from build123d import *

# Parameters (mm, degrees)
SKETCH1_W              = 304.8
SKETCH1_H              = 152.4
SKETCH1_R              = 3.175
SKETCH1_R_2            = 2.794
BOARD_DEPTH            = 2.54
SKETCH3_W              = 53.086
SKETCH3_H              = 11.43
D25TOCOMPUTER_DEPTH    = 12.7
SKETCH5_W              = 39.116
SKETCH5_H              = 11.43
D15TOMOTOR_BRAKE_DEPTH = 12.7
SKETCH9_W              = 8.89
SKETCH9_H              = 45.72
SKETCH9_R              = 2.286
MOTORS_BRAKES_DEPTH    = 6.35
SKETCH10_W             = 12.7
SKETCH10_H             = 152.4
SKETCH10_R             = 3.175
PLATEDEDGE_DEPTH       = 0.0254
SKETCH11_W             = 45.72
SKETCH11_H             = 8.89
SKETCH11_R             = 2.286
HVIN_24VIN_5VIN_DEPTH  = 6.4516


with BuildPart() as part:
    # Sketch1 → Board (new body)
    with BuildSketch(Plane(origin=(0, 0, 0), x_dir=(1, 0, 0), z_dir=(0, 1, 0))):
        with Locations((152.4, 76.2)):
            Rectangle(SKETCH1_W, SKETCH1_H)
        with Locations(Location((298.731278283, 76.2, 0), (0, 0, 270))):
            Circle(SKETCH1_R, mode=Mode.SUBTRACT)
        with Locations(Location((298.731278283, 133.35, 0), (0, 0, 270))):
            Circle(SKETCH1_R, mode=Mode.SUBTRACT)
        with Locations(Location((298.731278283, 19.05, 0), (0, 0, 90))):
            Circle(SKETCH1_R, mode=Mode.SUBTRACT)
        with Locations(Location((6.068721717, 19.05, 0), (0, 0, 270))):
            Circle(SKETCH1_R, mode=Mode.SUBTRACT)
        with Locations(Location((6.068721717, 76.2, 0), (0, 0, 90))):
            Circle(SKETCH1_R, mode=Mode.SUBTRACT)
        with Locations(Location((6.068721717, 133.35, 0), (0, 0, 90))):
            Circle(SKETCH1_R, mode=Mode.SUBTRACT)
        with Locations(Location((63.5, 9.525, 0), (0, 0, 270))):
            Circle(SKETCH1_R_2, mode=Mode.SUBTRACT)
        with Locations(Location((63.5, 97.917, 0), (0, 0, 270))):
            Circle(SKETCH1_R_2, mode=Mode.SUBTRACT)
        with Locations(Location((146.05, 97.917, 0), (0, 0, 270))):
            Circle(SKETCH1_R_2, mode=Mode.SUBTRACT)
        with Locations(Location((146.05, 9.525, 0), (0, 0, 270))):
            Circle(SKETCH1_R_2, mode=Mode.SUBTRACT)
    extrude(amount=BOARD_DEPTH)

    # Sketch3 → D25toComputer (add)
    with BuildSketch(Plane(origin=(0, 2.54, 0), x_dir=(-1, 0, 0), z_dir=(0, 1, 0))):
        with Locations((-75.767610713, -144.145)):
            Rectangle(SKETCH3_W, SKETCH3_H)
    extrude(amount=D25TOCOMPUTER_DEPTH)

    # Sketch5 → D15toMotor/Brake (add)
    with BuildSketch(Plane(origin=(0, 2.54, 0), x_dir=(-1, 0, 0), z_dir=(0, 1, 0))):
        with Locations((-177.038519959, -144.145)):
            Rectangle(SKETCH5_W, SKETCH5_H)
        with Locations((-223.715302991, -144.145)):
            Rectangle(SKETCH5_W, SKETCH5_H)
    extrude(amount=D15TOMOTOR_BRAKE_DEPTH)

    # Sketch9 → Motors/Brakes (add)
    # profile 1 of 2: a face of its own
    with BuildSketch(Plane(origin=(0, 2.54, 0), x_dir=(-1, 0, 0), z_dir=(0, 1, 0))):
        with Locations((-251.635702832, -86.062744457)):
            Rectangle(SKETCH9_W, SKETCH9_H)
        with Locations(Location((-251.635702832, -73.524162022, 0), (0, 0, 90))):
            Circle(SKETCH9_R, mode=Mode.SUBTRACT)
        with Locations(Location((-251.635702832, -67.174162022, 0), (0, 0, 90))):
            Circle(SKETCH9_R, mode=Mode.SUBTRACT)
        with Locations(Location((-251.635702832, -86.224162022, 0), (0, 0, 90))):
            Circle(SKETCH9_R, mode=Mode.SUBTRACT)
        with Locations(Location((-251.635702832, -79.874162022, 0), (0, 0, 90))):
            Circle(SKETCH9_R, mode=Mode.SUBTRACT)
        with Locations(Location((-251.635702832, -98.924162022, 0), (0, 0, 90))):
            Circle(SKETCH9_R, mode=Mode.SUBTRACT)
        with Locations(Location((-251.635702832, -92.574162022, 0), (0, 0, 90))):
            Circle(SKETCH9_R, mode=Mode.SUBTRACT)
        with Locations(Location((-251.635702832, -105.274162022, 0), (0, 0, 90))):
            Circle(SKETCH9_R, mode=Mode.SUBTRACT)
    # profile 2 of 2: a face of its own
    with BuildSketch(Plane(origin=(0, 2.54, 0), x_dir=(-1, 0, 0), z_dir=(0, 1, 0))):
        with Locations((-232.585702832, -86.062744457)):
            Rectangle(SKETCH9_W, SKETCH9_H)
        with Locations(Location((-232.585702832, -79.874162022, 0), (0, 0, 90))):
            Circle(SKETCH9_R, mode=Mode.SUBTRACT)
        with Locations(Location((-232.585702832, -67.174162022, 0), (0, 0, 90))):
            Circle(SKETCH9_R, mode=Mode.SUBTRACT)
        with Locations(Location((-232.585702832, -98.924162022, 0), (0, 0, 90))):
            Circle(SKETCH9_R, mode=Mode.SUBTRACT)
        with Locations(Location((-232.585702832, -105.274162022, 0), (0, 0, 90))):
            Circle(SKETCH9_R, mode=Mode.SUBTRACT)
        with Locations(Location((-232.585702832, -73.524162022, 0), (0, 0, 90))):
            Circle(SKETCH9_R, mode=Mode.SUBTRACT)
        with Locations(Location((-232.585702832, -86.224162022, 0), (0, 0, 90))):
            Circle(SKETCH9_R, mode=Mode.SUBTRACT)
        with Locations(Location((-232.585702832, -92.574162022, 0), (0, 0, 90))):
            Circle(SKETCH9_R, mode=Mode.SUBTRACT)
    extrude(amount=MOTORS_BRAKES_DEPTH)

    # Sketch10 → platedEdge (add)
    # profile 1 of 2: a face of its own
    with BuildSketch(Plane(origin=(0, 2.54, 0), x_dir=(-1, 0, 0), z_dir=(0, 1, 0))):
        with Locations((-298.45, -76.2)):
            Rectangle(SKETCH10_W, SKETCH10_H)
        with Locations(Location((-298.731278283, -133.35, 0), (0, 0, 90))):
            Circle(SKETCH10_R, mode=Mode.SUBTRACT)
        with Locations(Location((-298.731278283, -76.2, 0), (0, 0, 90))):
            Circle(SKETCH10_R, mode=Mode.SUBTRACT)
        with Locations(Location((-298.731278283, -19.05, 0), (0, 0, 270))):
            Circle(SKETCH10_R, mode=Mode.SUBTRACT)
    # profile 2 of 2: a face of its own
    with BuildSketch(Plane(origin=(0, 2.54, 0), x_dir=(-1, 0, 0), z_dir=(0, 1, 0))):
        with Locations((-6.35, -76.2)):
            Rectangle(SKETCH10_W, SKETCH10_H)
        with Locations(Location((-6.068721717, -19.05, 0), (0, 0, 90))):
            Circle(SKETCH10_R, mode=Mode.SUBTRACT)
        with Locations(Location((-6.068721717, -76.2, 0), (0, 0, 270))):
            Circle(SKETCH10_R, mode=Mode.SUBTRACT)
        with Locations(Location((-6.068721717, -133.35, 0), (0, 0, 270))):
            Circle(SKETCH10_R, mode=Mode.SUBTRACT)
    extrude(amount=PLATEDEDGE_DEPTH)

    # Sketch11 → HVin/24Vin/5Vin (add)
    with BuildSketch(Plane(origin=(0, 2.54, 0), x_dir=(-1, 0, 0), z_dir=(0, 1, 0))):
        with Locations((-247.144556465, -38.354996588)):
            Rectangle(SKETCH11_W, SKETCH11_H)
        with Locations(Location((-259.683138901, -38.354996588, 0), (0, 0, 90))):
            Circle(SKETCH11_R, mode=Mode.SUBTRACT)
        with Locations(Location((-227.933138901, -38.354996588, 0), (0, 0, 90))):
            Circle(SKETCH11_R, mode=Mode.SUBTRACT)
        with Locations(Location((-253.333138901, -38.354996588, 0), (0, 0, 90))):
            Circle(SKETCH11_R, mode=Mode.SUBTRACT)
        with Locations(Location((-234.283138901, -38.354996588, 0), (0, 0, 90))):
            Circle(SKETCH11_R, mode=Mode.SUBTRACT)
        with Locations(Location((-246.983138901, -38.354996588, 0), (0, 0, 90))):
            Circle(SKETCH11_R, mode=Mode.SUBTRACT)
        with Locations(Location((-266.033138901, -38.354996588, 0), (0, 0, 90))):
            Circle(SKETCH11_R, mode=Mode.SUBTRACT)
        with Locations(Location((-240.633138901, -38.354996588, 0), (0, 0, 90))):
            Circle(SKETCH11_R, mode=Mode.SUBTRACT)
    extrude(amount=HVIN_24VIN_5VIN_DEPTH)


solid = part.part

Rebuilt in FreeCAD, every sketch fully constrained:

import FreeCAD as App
import Part
import Sketcher
from FreeCAD import Vector
Q = App.Units.Quantity

doc = App.newDocument("Part")
params = doc.addObject("Spreadsheet::Sheet", "Params")
for row, (alias, value) in enumerate([
    ("sketch1_diameter", "0.25 in"),
    ("sketch1_diameter2", "0.22 in"),
    ("sketch1_width", "12 in"),
    ("sketch1_height", "6 in"),
    ("pad1_length", "0.1 in"),
    ("sketch2_width", "2.09 in"),
    ("sketch2_height", "0.45 in"),
    ("pad2_length", "0.5 in"),
    ("sketch3_width", "1.54 in"),
    ("sketch3_height", "0.45 in"),
    ("pad3_length", "0.5 in"),
    ("sketch4_diameter", "0.18 in"),
    ("sketch4_height", "1.8 in"),
    ("sketch4_width", "0.35 in"),
    ("pad4_length", "0.25 in"),
    ("sketch5_diameter", "0.25 in"),
    ("sketch5_height", "6 in"),
    ("sketch5_width", "0.5 in"),
    ("pad5_length", "0.001 in"),
    ("sketch6_diameter", "0.18 in"),
    ("sketch6_width", "1.8 in"),
    ("sketch6_height", "0.35 in"),
    ("pad6_length", "0.254 in"),
], start=1):
    params.set(f"A{row}", alias)
    params.set(f"B{row}", "=" + value)
    params.setAlias(f"B{row}", alias)

body = doc.addObject("PartDesign::Body", "Body")

sketch1 = body.newObject("Sketcher::SketchObject", "Sketch")
sketch1.AttachmentSupport = (doc.getObject("XZ_Plane"), [""])
sketch1.MapMode = "FlatFace"
sketch1.addGeometry(Part.LineSegment(Vector(0, -152.4, 0), Vector(0, 0, 0)), False)
sketch1.addGeometry(Part.LineSegment(Vector(0, 0, 0), Vector(304.8, 0, 0)), False)
sketch1.addGeometry(Part.LineSegment(Vector(304.8, 0, 0), Vector(304.8, -152.4, 0)), False)
sketch1.addGeometry(Part.LineSegment(Vector(304.8, -152.4, 0), Vector(0, -152.4, 0)), False)
sketch1.addGeometry(Part.Circle(Vector(6.1, -19.1, 0), Vector(0, 0, 1), 3.2), False)
sketch1.addGeometry(Part.Circle(Vector(63.5, -9.5, 0), Vector(0, 0, 1), 2.8), False)
sketch1.addGeometry(Part.Circle(Vector(146.1, -9.5, 0), Vector(0, 0, 1), 2.8), False)
sketch1.addGeometry(Part.Circle(Vector(298.7, -19.1, 0), Vector(0, 0, 1), 3.2), False)
sketch1.addGeometry(Part.Circle(Vector(6.1, -76.2, 0), Vector(0, 0, 1), 3.2), False)
sketch1.addGeometry(Part.Circle(Vector(63.5, -97.9, 0), Vector(0, 0, 1), 2.8), False)
sketch1.addGeometry(Part.Circle(Vector(146.1, -97.9, 0), Vector(0, 0, 1), 2.8), False)
sketch1.addGeometry(Part.Circle(Vector(6.1, -133.3, 0), Vector(0, 0, 1), 3.2), False)
sketch1.addGeometry(Part.Circle(Vector(298.7, -76.2, 0), Vector(0, 0, 1), 3.2), False)
sketch1.addGeometry(Part.Circle(Vector(298.7, -133.3, 0), Vector(0, 0, 1), 3.2), False)
sketch1.addConstraint(Sketcher.Constraint("Coincident", 0, 2, 1, 1))
sketch1.addConstraint(Sketcher.Constraint("Coincident", 1, 2, 2, 1))
sketch1.addConstraint(Sketcher.Constraint("Coincident", 2, 2, 3, 1))
sketch1.addConstraint(Sketcher.Constraint("Coincident", 3, 2, 0, 1))
sketch1.addConstraint(Sketcher.Constraint("Vertical", 0))
sketch1.addConstraint(Sketcher.Constraint("Horizontal", 1))
sketch1.addConstraint(Sketcher.Constraint("Vertical", 2))
sketch1.addConstraint(Sketcher.Constraint("Horizontal", 3))
sketch1.addConstraint(Sketcher.Constraint("Coincident", 0, 2, -1, 1))
sketch1.addConstraint(Sketcher.Constraint("Equal", 5, 6))
sketch1.addConstraint(Sketcher.Constraint("Equal", 4, 7))
sketch1.addConstraint(Sketcher.Constraint("Equal", 7, 8))
sketch1.addConstraint(Sketcher.Constraint("Equal", 6, 9))
sketch1.addConstraint(Sketcher.Constraint("Equal", 9, 10))
sketch1.addConstraint(Sketcher.Constraint("Equal", 8, 11))
sketch1.addConstraint(Sketcher.Constraint("Equal", 11, 12))
sketch1.addConstraint(Sketcher.Constraint("Equal", 12, 13))
sketch1.addConstraint(Sketcher.Constraint("Horizontal", 5, 3, 6, 3))
sketch1.addConstraint(Sketcher.Constraint("Horizontal", 4, 3, 7, 3))
sketch1.addConstraint(Sketcher.Constraint("Horizontal", 9, 3, 10, 3))
sketch1.addConstraint(Sketcher.Constraint("Horizontal", 8, 3, 12, 3))
sketch1.addConstraint(Sketcher.Constraint("Horizontal", 11, 3, 13, 3))
sketch1.addConstraint(Sketcher.Constraint("Vertical", 4, 3, 8, 3))
sketch1.addConstraint(Sketcher.Constraint("Vertical", 5, 3, 9, 3))
sketch1.addConstraint(Sketcher.Constraint("Vertical", 6, 3, 10, 3))
sketch1.addConstraint(Sketcher.Constraint("Vertical", 8, 3, 11, 3))
sketch1.addConstraint(Sketcher.Constraint("Vertical", 7, 3, 12, 3))
sketch1.addConstraint(Sketcher.Constraint("Vertical", 12, 3, 13, 3))
sketch1.addConstraint(Sketcher.Constraint("Diameter", 4, Q("0.25 in")))
sketch1.addConstraint(Sketcher.Constraint("Diameter", 5, Q("0.22 in")))
sketch1.addConstraint(Sketcher.Constraint("DistanceX", 1, 1, 1, 2, Q("12 in")))
sketch1.addConstraint(Sketcher.Constraint("DistanceY", 0, 1, 0, 2, Q("6 in")))
sketch1.addConstraint(Sketcher.Constraint("DistanceY", 8, 3, -1, 1, Q("3 in")))
sketch1.addConstraint(Sketcher.Constraint("DistanceX", -1, 1, 5, 3, Q("2.5 in")))
sketch1.addConstraint(Sketcher.Constraint("DistanceY", 11, 3, 4, 3, Q("4.5 in")))
sketch1.addConstraint(Sketcher.Constraint("DistanceY", 4, 3, -1, 1, Q("0.75 in")))
sketch1.addConstraint(Sketcher.Constraint("DistanceX", -1, 1, 6, 3, Q("5.75 in")))
sketch1.addConstraint(Sketcher.Constraint("DistanceY", 9, 3, 5, 3, Q("3.48 in")))
sketch1.addConstraint(Sketcher.Constraint("DistanceY", 5, 3, -1, 1, Q("0.375 in")))
sketch1.addConstraint(Sketcher.Constraint("DistanceX", -1, 1, 4, 3, 6.068722))
sketch1.addConstraint(Sketcher.Constraint("DistanceX", -1, 1, 7, 3, 298.731278))
sketch1.setExpression("Constraints[28]", "Params.sketch1_diameter")
sketch1.setExpression("Constraints[29]", "Params.sketch1_diameter2")
sketch1.setExpression("Constraints[30]", "Params.sketch1_width")
sketch1.setExpression("Constraints[31]", "Params.sketch1_height")
pad1 = body.newObject("PartDesign::Pad", "Pad")
pad1.Profile = sketch1
pad1.setExpression("Length", "Params.pad1_length")
pad1.Reversed = True

sketch2 = body.newObject("Sketcher::SketchObject", "Sketch001")
sketch2.AttachmentSupport = (doc.getObject("XZ_Plane"), [""])
sketch2.MapMode = "FlatFace"
sketch2.AttachmentOffset = App.Placement(Vector(0, 0, -0.1 * 25.4), App.Rotation())
sketch2.addGeometry(Part.LineSegment(Vector(102, -138, 0), Vector(102, -150, 0)), False)
sketch2.addGeometry(Part.LineSegment(Vector(102, -150, 0), Vector(49, -150, 0)), False)
sketch2.addGeometry(Part.LineSegment(Vector(49, -150, 0), Vector(49, -138, 0)), False)
sketch2.addGeometry(Part.LineSegment(Vector(49, -138, 0), Vector(102, -138, 0)), False)
sketch2.addConstraint(Sketcher.Constraint("Coincident", 0, 2, 1, 1))
sketch2.addConstraint(Sketcher.Constraint("Coincident", 1, 2, 2, 1))
sketch2.addConstraint(Sketcher.Constraint("Coincident", 2, 2, 3, 1))
sketch2.addConstraint(Sketcher.Constraint("Coincident", 3, 2, 0, 1))
sketch2.addConstraint(Sketcher.Constraint("Vertical", 0))
sketch2.addConstraint(Sketcher.Constraint("Horizontal", 1))
sketch2.addConstraint(Sketcher.Constraint("Vertical", 2))
sketch2.addConstraint(Sketcher.Constraint("Horizontal", 3))
sketch2.addConstraint(Sketcher.Constraint("DistanceX", 1, 2, 1, 1, Q("2.09 in")))
sketch2.addConstraint(Sketcher.Constraint("DistanceY", 0, 2, 0, 1, Q("0.45 in")))
sketch2.addConstraint(Sketcher.Constraint("DistanceY", 0, 2, -1, 1, Q("5.9 in")))
sketch2.addConstraint(Sketcher.Constraint("DistanceX", -1, 1, 0, 2, 102.310611))
sketch2.setExpression("Constraints[8]", "Params.sketch2_width")
sketch2.setExpression("Constraints[9]", "Params.sketch2_height")
pad2 = body.newObject("PartDesign::Pad", "Pad001")
pad2.Profile = sketch2
pad2.setExpression("Length", "Params.pad2_length")
pad2.Reversed = True

sketch3 = body.newObject("Sketcher::SketchObject", "Sketch002")
sketch3.AttachmentSupport = (doc.getObject("XZ_Plane"), [""])
sketch3.MapMode = "FlatFace"
sketch3.AttachmentOffset = App.Placement(Vector(0, 0, -0.1 * 25.4), App.Rotation())
sketch3.addGeometry(Part.LineSegment(Vector(197, -138, 0), Vector(197, -150, 0)), False)
sketch3.addGeometry(Part.LineSegment(Vector(197, -150, 0), Vector(157, -150, 0)), False)
sketch3.addGeometry(Part.LineSegment(Vector(157, -150, 0), Vector(157, -138, 0)), False)
sketch3.addGeometry(Part.LineSegment(Vector(157, -138, 0), Vector(197, -138, 0)), False)
sketch3.addGeometry(Part.LineSegment(Vector(243, -138, 0), Vector(243, -150, 0)), False)
sketch3.addGeometry(Part.LineSegment(Vector(243, -150, 0), Vector(204, -150, 0)), False)
sketch3.addGeometry(Part.LineSegment(Vector(204, -150, 0), Vector(204, -138, 0)), False)
sketch3.addGeometry(Part.LineSegment(Vector(204, -138, 0), Vector(243, -138, 0)), False)
sketch3.addConstraint(Sketcher.Constraint("Coincident", 0, 2, 1, 1))
sketch3.addConstraint(Sketcher.Constraint("Coincident", 1, 2, 2, 1))
sketch3.addConstraint(Sketcher.Constraint("Coincident", 2, 2, 3, 1))
sketch3.addConstraint(Sketcher.Constraint("Coincident", 3, 2, 0, 1))
sketch3.addConstraint(Sketcher.Constraint("Coincident", 4, 2, 5, 1))
sketch3.addConstraint(Sketcher.Constraint("Coincident", 5, 2, 6, 1))
sketch3.addConstraint(Sketcher.Constraint("Coincident", 6, 2, 7, 1))
sketch3.addConstraint(Sketcher.Constraint("Coincident", 7, 2, 4, 1))
sketch3.addConstraint(Sketcher.Constraint("Vertical", 0))
sketch3.addConstraint(Sketcher.Constraint("Horizontal", 1))
sketch3.addConstraint(Sketcher.Constraint("Vertical", 2))
sketch3.addConstraint(Sketcher.Constraint("Horizontal", 3))
sketch3.addConstraint(Sketcher.Constraint("Vertical", 4))
sketch3.addConstraint(Sketcher.Constraint("Horizontal", 5))
sketch3.addConstraint(Sketcher.Constraint("Vertical", 6))
sketch3.addConstraint(Sketcher.Constraint("Horizontal", 7))
sketch3.addConstraint(Sketcher.Constraint("Horizontal", 1, 2, 4, 2))
sketch3.addConstraint(Sketcher.Constraint("Horizontal", 3, 2, 6, 2))
sketch3.addConstraint(Sketcher.Constraint("Equal", 3, 5))
sketch3.addConstraint(Sketcher.Constraint("DistanceX", 1, 2, 1, 1, Q("1.54 in")))
sketch3.addConstraint(Sketcher.Constraint("DistanceY", 0, 2, 0, 1, Q("0.45 in")))
sketch3.addConstraint(Sketcher.Constraint("DistanceY", 0, 2, -1, 1, Q("5.9 in")))
sketch3.addConstraint(Sketcher.Constraint("DistanceX", -1, 1, 0, 2, 196.59652))
sketch3.addConstraint(Sketcher.Constraint("DistanceX", -1, 1, 4, 2, 243.273303))
sketch3.setExpression("Constraints[19]", "Params.sketch3_width")
sketch3.setExpression("Constraints[20]", "Params.sketch3_height")
pad3 = body.newObject("PartDesign::Pad", "Pad002")
pad3.Profile = sketch3
pad3.setExpression("Length", "Params.pad3_length")
pad3.Reversed = True

sketch4 = body.newObject("Sketcher::SketchObject", "Sketch003")
sketch4.AttachmentSupport = (doc.getObject("XZ_Plane"), [""])
sketch4.MapMode = "FlatFace"
sketch4.AttachmentOffset = App.Placement(Vector(0, 0, -0.1 * 25.4), App.Rotation())
sketch4.addGeometry(Part.LineSegment(Vector(256.1, -63.2, 0), Vector(256.1, -108.9, 0)), False)
sketch4.addGeometry(Part.LineSegment(Vector(256.1, -108.9, 0), Vector(247.2, -108.9, 0)), False)
sketch4.addGeometry(Part.LineSegment(Vector(247.2, -108.9, 0), Vector(247.2, -63.2, 0)), False)
sketch4.addGeometry(Part.LineSegment(Vector(247.2, -63.2, 0), Vector(256.1, -63.2, 0)), False)
sketch4.addGeometry(Part.Circle(Vector(251.6, -105.3, 0), Vector(0, 0, 1), 2.3), False)
sketch4.addGeometry(Part.Circle(Vector(251.6, -98.9, 0), Vector(0, 0, 1), 2.3), False)
sketch4.addGeometry(Part.Circle(Vector(251.6, -92.6, 0), Vector(0, 0, 1), 2.3), False)
sketch4.addGeometry(Part.Circle(Vector(251.6, -86.2, 0), Vector(0, 0, 1), 2.3), False)
sketch4.addGeometry(Part.Circle(Vector(251.6, -79.9, 0), Vector(0, 0, 1), 2.3), False)
sketch4.addGeometry(Part.Circle(Vector(251.6, -73.5, 0), Vector(0, 0, 1), 2.3), False)
sketch4.addGeometry(Part.Circle(Vector(251.6, -67.2, 0), Vector(0, 0, 1), 2.3), False)
sketch4.addGeometry(Part.LineSegment(Vector(237, -63.2, 0), Vector(237, -108.9, 0)), False)
sketch4.addGeometry(Part.LineSegment(Vector(237, -108.9, 0), Vector(228.1, -108.9, 0)), False)
sketch4.addGeometry(Part.LineSegment(Vector(228.1, -108.9, 0), Vector(228.1, -63.2, 0)), False)
sketch4.addGeometry(Part.LineSegment(Vector(228.1, -63.2, 0), Vector(237, -63.2, 0)), False)
sketch4.addGeometry(Part.Circle(Vector(232.6, -105.3, 0), Vector(0, 0, 1), 2.3), False)
sketch4.addGeometry(Part.Circle(Vector(232.6, -98.9, 0), Vector(0, 0, 1), 2.3), False)
sketch4.addGeometry(Part.Circle(Vector(232.6, -92.6, 0), Vector(0, 0, 1), 2.3), False)
sketch4.addGeometry(Part.Circle(Vector(232.6, -86.2, 0), Vector(0, 0, 1), 2.3), False)
sketch4.addGeometry(Part.Circle(Vector(232.6, -79.9, 0), Vector(0, 0, 1), 2.3), False)
sketch4.addGeometry(Part.Circle(Vector(232.6, -73.5, 0), Vector(0, 0, 1), 2.3), False)
sketch4.addGeometry(Part.Circle(Vector(232.6, -67.2, 0), Vector(0, 0, 1), 2.3), False)
sketch4.addConstraint(Sketcher.Constraint("Coincident", 0, 2, 1, 1))
sketch4.addConstraint(Sketcher.Constraint("Coincident", 1, 2, 2, 1))
sketch4.addConstraint(Sketcher.Constraint("Coincident", 2, 2, 3, 1))
sketch4.addConstraint(Sketcher.Constraint("Coincident", 3, 2, 0, 1))
sketch4.addConstraint(Sketcher.Constraint("Coincident", 11, 2, 12, 1))
sketch4.addConstraint(Sketcher.Constraint("Coincident", 12, 2, 13, 1))
sketch4.addConstraint(Sketcher.Constraint("Coincident", 13, 2, 14, 1))
sketch4.addConstraint(Sketcher.Constraint("Coincident", 14, 2, 11, 1))
sketch4.addConstraint(Sketcher.Constraint("Vertical", 0))
sketch4.addConstraint(Sketcher.Constraint("Horizontal", 1))
sketch4.addConstraint(Sketcher.Constraint("Vertical", 2))
sketch4.addConstraint(Sketcher.Constraint("Horizontal", 3))
sketch4.addConstraint(Sketcher.Constraint("Vertical", 11))
sketch4.addConstraint(Sketcher.Constraint("Horizontal", 12))
sketch4.addConstraint(Sketcher.Constraint("Vertical", 13))
sketch4.addConstraint(Sketcher.Constraint("Horizontal", 14))
sketch4.addConstraint(Sketcher.Constraint("Equal", 4, 5))
sketch4.addConstraint(Sketcher.Constraint("Equal", 5, 6))
sketch4.addConstraint(Sketcher.Constraint("Equal", 6, 7))
sketch4.addConstraint(Sketcher.Constraint("Equal", 7, 8))
sketch4.addConstraint(Sketcher.Constraint("Equal", 8, 9))
sketch4.addConstraint(Sketcher.Constraint("Equal", 9, 10))
sketch4.addConstraint(Sketcher.Constraint("Equal", 10, 15))
sketch4.addConstraint(Sketcher.Constraint("Equal", 15, 16))
sketch4.addConstraint(Sketcher.Constraint("Equal", 16, 17))
sketch4.addConstraint(Sketcher.Constraint("Equal", 17, 18))
sketch4.addConstraint(Sketcher.Constraint("Equal", 18, 19))
sketch4.addConstraint(Sketcher.Constraint("Equal", 19, 20))
sketch4.addConstraint(Sketcher.Constraint("Equal", 20, 21))
sketch4.addConstraint(Sketcher.Constraint("Horizontal", 4, 3, 15, 3))
sketch4.addConstraint(Sketcher.Constraint("Horizontal", 5, 3, 16, 3))
sketch4.addConstraint(Sketcher.Constraint("Horizontal", 6, 3, 17, 3))
sketch4.addConstraint(Sketcher.Constraint("Horizontal", 7, 3, 18, 3))
sketch4.addConstraint(Sketcher.Constraint("Horizontal", 8, 3, 19, 3))
sketch4.addConstraint(Sketcher.Constraint("Horizontal", 9, 3, 20, 3))
sketch4.addConstraint(Sketcher.Constraint("Horizontal", 10, 3, 21, 3))
sketch4.addConstraint(Sketcher.Constraint("Horizontal", 1, 2, 11, 2))
sketch4.addConstraint(Sketcher.Constraint("Horizontal", 3, 2, 13, 2))
sketch4.addConstraint(Sketcher.Constraint("Vertical", 4, 3, 5, 3))
sketch4.addConstraint(Sketcher.Constraint("Vertical", 5, 3, 6, 3))
sketch4.addConstraint(Sketcher.Constraint("Vertical", 6, 3, 7, 3))
sketch4.addConstraint(Sketcher.Constraint("Vertical", 7, 3, 8, 3))
sketch4.addConstraint(Sketcher.Constraint("Vertical", 8, 3, 9, 3))
sketch4.addConstraint(Sketcher.Constraint("Vertical", 9, 3, 10, 3))
sketch4.addConstraint(Sketcher.Constraint("Vertical", 15, 3, 16, 3))
sketch4.addConstraint(Sketcher.Constraint("Vertical", 16, 3, 17, 3))
sketch4.addConstraint(Sketcher.Constraint("Vertical", 17, 3, 18, 3))
sketch4.addConstraint(Sketcher.Constraint("Vertical", 18, 3, 19, 3))
sketch4.addConstraint(Sketcher.Constraint("Vertical", 19, 3, 20, 3))
sketch4.addConstraint(Sketcher.Constraint("Vertical", 20, 3, 21, 3))
sketch4.addConstraint(Sketcher.Constraint("Equal", 3, 12))
sketch4.addConstraint(Sketcher.Constraint("Diameter", 4, Q("0.18 in")))
sketch4.addConstraint(Sketcher.Constraint("DistanceY", 0, 2, 0, 1, Q("1.8 in")))
sketch4.addConstraint(Sketcher.Constraint("DistanceY", 4, 3, 8, 3, Q("1 in")))
sketch4.addConstraint(Sketcher.Constraint("DistanceY", 5, 3, 9, 3, Q("1 in")))
sketch4.addConstraint(Sketcher.Constraint("DistanceY", 6, 3, 10, 3, Q("1 in")))
sketch4.addConstraint(Sketcher.Constraint("DistanceX", 1, 2, 1, 1, Q("0.35 in")))
sketch4.addConstraint(Sketcher.Constraint("DistanceY", 4, 3, 6, 3, Q("0.5 in")))
sketch4.addConstraint(Sketcher.Constraint("DistanceY", 5, 3, 7, 3, Q("0.5 in")))
sketch4.addConstraint(Sketcher.Constraint("DistanceX", 11, 2, 1, 2, Q("0.4 in")))
sketch4.addConstraint(Sketcher.Constraint("DistanceY", 4, 3, 5, 3, Q("0.25 in")))
sketch4.addConstraint(Sketcher.Constraint("DistanceX", 15, 3, 4, 3, Q("0.75 in")))
sketch4.addConstraint(Sketcher.Constraint("DistanceX", 4, 3, 0, 2, Q("0.175 in")))
sketch4.addConstraint(Sketcher.Constraint("DistanceX", -1, 1, 4, 3, 251.635703))
sketch4.addConstraint(Sketcher.Constraint("DistanceY", 4, 3, -1, 1, 105.274162))
sketch4.addConstraint(Sketcher.Constraint("DistanceY", 0, 2, -1, 1, 108.922744))
sketch4.setExpression("Constraints[51]", "Params.sketch4_diameter")
sketch4.setExpression("Constraints[52]", "Params.sketch4_height")
sketch4.setExpression("Constraints[56]", "Params.sketch4_width")
pad4 = body.newObject("PartDesign::Pad", "Pad003")
pad4.Profile = sketch4
pad4.setExpression("Length", "Params.pad4_length")
pad4.Reversed = True

sketch5 = body.newObject("Sketcher::SketchObject", "Sketch004")
sketch5.AttachmentSupport = (doc.getObject("XZ_Plane"), [""])
sketch5.MapMode = "FlatFace"
sketch5.AttachmentOffset = App.Placement(Vector(0, 0, -0.1 * 25.4), App.Rotation())
sketch5.addGeometry(Part.LineSegment(Vector(304.8, 0, 0), Vector(304.8, -152.4, 0)), False)
sketch5.addGeometry(Part.LineSegment(Vector(304.8, -152.4, 0), Vector(292.1, -152.4, 0)), False)
sketch5.addGeometry(Part.LineSegment(Vector(292.1, -152.4, 0), Vector(292.1, 0, 0)), False)
sketch5.addGeometry(Part.LineSegment(Vector(292.1, 0, 0), Vector(304.8, 0, 0)), False)
sketch5.addGeometry(Part.Circle(Vector(298.7, -133.3, 0), Vector(0, 0, 1), 3.2), False)
sketch5.addGeometry(Part.Circle(Vector(298.7, -76.2, 0), Vector(0, 0, 1), 3.2), False)
sketch5.addGeometry(Part.Circle(Vector(298.7, -19.1, 0), Vector(0, 0, 1), 3.2), False)
sketch5.addGeometry(Part.LineSegment(Vector(12.7, 0, 0), Vector(12.7, -152.4, 0)), False)
sketch5.addGeometry(Part.LineSegment(Vector(12.7, -152.4, 0), Vector(0, -152.4, 0)), False)
sketch5.addGeometry(Part.LineSegment(Vector(0, -152.4, 0), Vector(0, 0, 0)), False)
sketch5.addGeometry(Part.LineSegment(Vector(0, 0, 0), Vector(12.7, 0, 0)), False)
sketch5.addGeometry(Part.Circle(Vector(6.1, -133.3, 0), Vector(0, 0, 1), 3.2), False)
sketch5.addGeometry(Part.Circle(Vector(6.1, -76.2, 0), Vector(0, 0, 1), 3.2), False)
sketch5.addGeometry(Part.Circle(Vector(6.1, -19.1, 0), Vector(0, 0, 1), 3.2), False)
sketch5.addConstraint(Sketcher.Constraint("Coincident", 0, 2, 1, 1))
sketch5.addConstraint(Sketcher.Constraint("Coincident", 1, 2, 2, 1))
sketch5.addConstraint(Sketcher.Constraint("Coincident", 2, 2, 3, 1))
sketch5.addConstraint(Sketcher.Constraint("Coincident", 3, 2, 0, 1))
sketch5.addConstraint(Sketcher.Constraint("Coincident", 7, 2, 8, 1))
sketch5.addConstraint(Sketcher.Constraint("Coincident", 8, 2, 9, 1))
sketch5.addConstraint(Sketcher.Constraint("Coincident", 9, 2, 10, 1))
sketch5.addConstraint(Sketcher.Constraint("Coincident", 10, 2, 7, 1))
sketch5.addConstraint(Sketcher.Constraint("Vertical", 0))
sketch5.addConstraint(Sketcher.Constraint("Horizontal", 1))
sketch5.addConstraint(Sketcher.Constraint("Vertical", 2))
sketch5.addConstraint(Sketcher.Constraint("Horizontal", 3))
sketch5.addConstraint(Sketcher.Constraint("Vertical", 7))
sketch5.addConstraint(Sketcher.Constraint("Horizontal", 8))
sketch5.addConstraint(Sketcher.Constraint("Vertical", 9))
sketch5.addConstraint(Sketcher.Constraint("Horizontal", 10))
sketch5.addConstraint(Sketcher.Constraint("Coincident", 9, 2, -1, 1))
sketch5.addConstraint(Sketcher.Constraint("Equal", 4, 5))
sketch5.addConstraint(Sketcher.Constraint("Equal", 5, 6))
sketch5.addConstraint(Sketcher.Constraint("Equal", 6, 11))
sketch5.addConstraint(Sketcher.Constraint("Equal", 11, 12))
sketch5.addConstraint(Sketcher.Constraint("Equal", 12, 13))
sketch5.addConstraint(Sketcher.Constraint("PointOnObject", 2, 2, -1))
sketch5.addConstraint(Sketcher.Constraint("Horizontal", 4, 3, 11, 3))
sketch5.addConstraint(Sketcher.Constraint("Horizontal", 5, 3, 12, 3))
sketch5.addConstraint(Sketcher.Constraint("Horizontal", 6, 3, 13, 3))
sketch5.addConstraint(Sketcher.Constraint("Horizontal", 1, 2, 7, 2))
sketch5.addConstraint(Sketcher.Constraint("Vertical", 4, 3, 5, 3))
sketch5.addConstraint(Sketcher.Constraint("Vertical", 5, 3, 6, 3))
sketch5.addConstraint(Sketcher.Constraint("Vertical", 11, 3, 12, 3))
sketch5.addConstraint(Sketcher.Constraint("Vertical", 12, 3, 13, 3))
sketch5.addConstraint(Sketcher.Constraint("Equal", 3, 8))
sketch5.addConstraint(Sketcher.Constraint("Diameter", 4, Q("0.25 in")))
sketch5.addConstraint(Sketcher.Constraint("DistanceY", 0, 2, 0, 1, Q("6 in")))
sketch5.addConstraint(Sketcher.Constraint("DistanceX", 1, 2, 1, 1, Q("0.5 in")))
sketch5.addConstraint(Sketcher.Constraint("DistanceY", 5, 3, -1, 1, Q("3 in")))
sketch5.addConstraint(Sketcher.Constraint("DistanceX", -1, 1, 0, 2, Q("12 in")))
sketch5.addConstraint(Sketcher.Constraint("DistanceY", 4, 3, 6, 3, Q("4.5 in")))
sketch5.addConstraint(Sketcher.Constraint("DistanceY", 4, 3, -1, 1, Q("5.25 in")))
sketch5.addConstraint(Sketcher.Constraint("DistanceX", -1, 1, 4, 3, 298.731278))
sketch5.addConstraint(Sketcher.Constraint("DistanceX", -1, 1, 11, 3, 6.068722))
sketch5.setExpression("Constraints[32]", "Params.sketch5_diameter")
sketch5.setExpression("Constraints[33]", "Params.sketch5_height")
sketch5.setExpression("Constraints[34]", "Params.sketch5_width")
pad5 = body.newObject("PartDesign::Pad", "Pad004")
pad5.Profile = sketch5
pad5.setExpression("Length", "Params.pad5_length")
pad5.Reversed = True

sketch6 = body.newObject("Sketcher::SketchObject", "Sketch005")
sketch6.AttachmentSupport = (doc.getObject("XZ_Plane"), [""])
sketch6.MapMode = "FlatFace"
sketch6.AttachmentOffset = App.Placement(Vector(0, 0, -0.1 * 25.4), App.Rotation())
sketch6.addGeometry(Part.LineSegment(Vector(270, -33.9, 0), Vector(270, -42.8, 0)), False)
sketch6.addGeometry(Part.LineSegment(Vector(270, -42.8, 0), Vector(224.3, -42.8, 0)), False)
sketch6.addGeometry(Part.LineSegment(Vector(224.3, -42.8, 0), Vector(224.3, -33.9, 0)), False)
sketch6.addGeometry(Part.LineSegment(Vector(224.3, -33.9, 0), Vector(270, -33.9, 0)), False)
sketch6.addGeometry(Part.Circle(Vector(266, -38.4, 0), Vector(0, 0, 1), 2.3), False)
sketch6.addGeometry(Part.Circle(Vector(259.7, -38.4, 0), Vector(0, 0, 1), 2.3), False)
sketch6.addGeometry(Part.Circle(Vector(253.3, -38.4, 0), Vector(0, 0, 1), 2.3), False)
sketch6.addGeometry(Part.Circle(Vector(247, -38.4, 0), Vector(0, 0, 1), 2.3), False)
sketch6.addGeometry(Part.Circle(Vector(240.6, -38.4, 0), Vector(0, 0, 1), 2.3), False)
sketch6.addGeometry(Part.Circle(Vector(234.3, -38.4, 0), Vector(0, 0, 1), 2.3), False)
sketch6.addGeometry(Part.Circle(Vector(227.9, -38.4, 0), Vector(0, 0, 1), 2.3), False)
sketch6.addConstraint(Sketcher.Constraint("Coincident", 0, 2, 1, 1))
sketch6.addConstraint(Sketcher.Constraint("Coincident", 1, 2, 2, 1))
sketch6.addConstraint(Sketcher.Constraint("Coincident", 2, 2, 3, 1))
sketch6.addConstraint(Sketcher.Constraint("Coincident", 3, 2, 0, 1))
sketch6.addConstraint(Sketcher.Constraint("Vertical", 0))
sketch6.addConstraint(Sketcher.Constraint("Horizontal", 1))
sketch6.addConstraint(Sketcher.Constraint("Vertical", 2))
sketch6.addConstraint(Sketcher.Constraint("Horizontal", 3))
sketch6.addConstraint(Sketcher.Constraint("Equal", 4, 5))
sketch6.addConstraint(Sketcher.Constraint("Equal", 5, 6))
sketch6.addConstraint(Sketcher.Constraint("Equal", 6, 7))
sketch6.addConstraint(Sketcher.Constraint("Equal", 7, 8))
sketch6.addConstraint(Sketcher.Constraint("Equal", 8, 9))
sketch6.addConstraint(Sketcher.Constraint("Equal", 9, 10))
sketch6.addConstraint(Sketcher.Constraint("Horizontal", 4, 3, 5, 3))
sketch6.addConstraint(Sketcher.Constraint("Horizontal", 5, 3, 6, 3))
sketch6.addConstraint(Sketcher.Constraint("Horizontal", 6, 3, 7, 3))
sketch6.addConstraint(Sketcher.Constraint("Horizontal", 7, 3, 8, 3))
sketch6.addConstraint(Sketcher.Constraint("Horizontal", 8, 3, 9, 3))
sketch6.addConstraint(Sketcher.Constraint("Horizontal", 9, 3, 10, 3))
sketch6.addConstraint(Sketcher.Constraint("Diameter", 4, Q("0.18 in")))
sketch6.addConstraint(Sketcher.Constraint("DistanceX", 1, 2, 1, 1, Q("1.8 in")))
sketch6.addConstraint(Sketcher.Constraint("DistanceX", 8, 3, 4, 3, Q("1 in")))
sketch6.addConstraint(Sketcher.Constraint("DistanceX", 9, 3, 5, 3, Q("1 in")))
sketch6.addConstraint(Sketcher.Constraint("DistanceX", 10, 3, 6, 3, Q("1 in")))
sketch6.addConstraint(Sketcher.Constraint("DistanceY", 0, 2, 0, 1, Q("0.35 in")))
sketch6.addConstraint(Sketcher.Constraint("DistanceX", 6, 3, 4, 3, Q("0.5 in")))
sketch6.addConstraint(Sketcher.Constraint("DistanceX", 7, 3, 5, 3, Q("0.5 in")))
sketch6.addConstraint(Sketcher.Constraint("DistanceX", 5, 3, 4, 3, Q("0.25 in")))
sketch6.addConstraint(Sketcher.Constraint("DistanceY", 0, 2, 4, 3, Q("0.175 in")))
sketch6.addConstraint(Sketcher.Constraint("DistanceX", -1, 1, 4, 3, 266.033139))
sketch6.addConstraint(Sketcher.Constraint("DistanceY", 4, 3, -1, 1, 38.354997))
sketch6.addConstraint(Sketcher.Constraint("DistanceX", -1, 1, 0, 2, 270.004556))
sketch6.setExpression("Constraints[20]", "Params.sketch6_diameter")
sketch6.setExpression("Constraints[21]", "Params.sketch6_width")
sketch6.setExpression("Constraints[25]", "Params.sketch6_height")
pad6 = body.newObject("PartDesign::Pad", "Pad005")
pad6.Profile = sketch6
pad6.setExpression("Length", "Params.pad6_length")
pad6.Reversed = True

doc.recompute()
